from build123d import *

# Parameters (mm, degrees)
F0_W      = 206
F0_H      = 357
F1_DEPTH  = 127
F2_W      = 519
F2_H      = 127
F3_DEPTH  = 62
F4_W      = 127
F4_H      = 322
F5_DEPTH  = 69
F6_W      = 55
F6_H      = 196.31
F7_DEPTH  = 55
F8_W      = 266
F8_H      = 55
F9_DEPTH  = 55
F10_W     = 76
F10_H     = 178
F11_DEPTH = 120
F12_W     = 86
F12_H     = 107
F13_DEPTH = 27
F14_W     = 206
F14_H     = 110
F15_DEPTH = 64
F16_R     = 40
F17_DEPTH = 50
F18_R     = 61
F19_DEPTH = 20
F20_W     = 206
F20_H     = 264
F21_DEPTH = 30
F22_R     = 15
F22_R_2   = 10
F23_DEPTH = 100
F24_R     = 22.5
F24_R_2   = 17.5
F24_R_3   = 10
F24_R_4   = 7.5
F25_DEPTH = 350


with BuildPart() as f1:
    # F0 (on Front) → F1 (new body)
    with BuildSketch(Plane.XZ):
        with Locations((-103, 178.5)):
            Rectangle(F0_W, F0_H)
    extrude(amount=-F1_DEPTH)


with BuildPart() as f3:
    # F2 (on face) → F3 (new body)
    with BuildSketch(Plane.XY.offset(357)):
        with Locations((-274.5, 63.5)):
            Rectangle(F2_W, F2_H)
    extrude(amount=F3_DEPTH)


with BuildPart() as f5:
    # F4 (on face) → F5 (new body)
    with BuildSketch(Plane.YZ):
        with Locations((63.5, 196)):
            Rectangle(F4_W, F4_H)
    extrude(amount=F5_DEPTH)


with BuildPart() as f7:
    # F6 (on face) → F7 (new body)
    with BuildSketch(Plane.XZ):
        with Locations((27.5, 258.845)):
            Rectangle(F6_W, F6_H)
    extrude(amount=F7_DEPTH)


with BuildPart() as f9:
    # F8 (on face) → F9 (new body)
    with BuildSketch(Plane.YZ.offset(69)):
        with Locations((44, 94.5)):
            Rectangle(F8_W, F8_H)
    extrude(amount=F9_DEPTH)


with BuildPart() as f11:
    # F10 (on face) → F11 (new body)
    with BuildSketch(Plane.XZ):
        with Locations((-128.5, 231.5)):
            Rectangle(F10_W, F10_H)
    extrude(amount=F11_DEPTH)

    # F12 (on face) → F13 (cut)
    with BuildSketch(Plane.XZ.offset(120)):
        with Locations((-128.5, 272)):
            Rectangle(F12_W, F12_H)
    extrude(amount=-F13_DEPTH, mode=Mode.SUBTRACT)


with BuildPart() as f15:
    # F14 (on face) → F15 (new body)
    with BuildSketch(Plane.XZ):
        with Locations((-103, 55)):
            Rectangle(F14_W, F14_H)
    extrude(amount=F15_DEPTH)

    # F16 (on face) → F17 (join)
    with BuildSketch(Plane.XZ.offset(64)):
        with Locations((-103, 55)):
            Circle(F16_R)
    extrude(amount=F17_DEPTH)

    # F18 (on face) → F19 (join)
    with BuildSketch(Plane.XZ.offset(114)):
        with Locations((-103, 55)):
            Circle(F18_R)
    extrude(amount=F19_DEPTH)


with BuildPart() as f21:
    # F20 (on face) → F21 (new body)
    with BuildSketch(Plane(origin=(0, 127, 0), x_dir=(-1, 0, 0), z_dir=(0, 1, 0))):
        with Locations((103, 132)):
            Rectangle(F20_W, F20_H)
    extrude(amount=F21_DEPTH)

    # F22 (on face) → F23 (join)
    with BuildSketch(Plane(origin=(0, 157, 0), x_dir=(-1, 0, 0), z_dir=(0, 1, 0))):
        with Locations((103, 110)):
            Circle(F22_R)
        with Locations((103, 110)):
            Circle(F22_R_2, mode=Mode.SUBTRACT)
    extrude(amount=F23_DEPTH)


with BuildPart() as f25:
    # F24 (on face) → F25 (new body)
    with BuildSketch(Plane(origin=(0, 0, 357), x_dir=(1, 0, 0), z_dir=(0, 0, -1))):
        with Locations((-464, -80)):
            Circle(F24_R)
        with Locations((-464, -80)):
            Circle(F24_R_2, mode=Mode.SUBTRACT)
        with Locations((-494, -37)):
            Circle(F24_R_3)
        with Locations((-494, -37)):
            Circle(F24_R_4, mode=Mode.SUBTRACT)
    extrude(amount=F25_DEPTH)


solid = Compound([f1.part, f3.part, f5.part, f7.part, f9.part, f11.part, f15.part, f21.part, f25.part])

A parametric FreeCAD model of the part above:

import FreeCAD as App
import Part
import Sketcher

V = App.Vector
Q = App.Units.Quantity

doc = App.newDocument("Part")
params = doc.addObject("Spreadsheet::Sheet", "Params")
for row, (alias, value) in enumerate([
    ("sketch1_width", "206 mm"),
    ("sketch1_height", "357 mm"),
    ("pad1_length", "127 mm"),
    ("sketch2_width", "519 mm"),
    ("sketch2_height", "127 mm"),
    ("pad2_length", "62 mm"),
    ("sketch3_width", "127 mm"),
    ("sketch3_height", "322 mm"),
    ("pad3_length", "69 mm"),
    ("sketch4_width", "55 mm"),
    ("sketch4_height", "196.31 mm"),
    ("pad4_length", "55 mm"),
    ("sketch5_width", "266 mm"),
    ("sketch5_height", "55 mm"),
    ("pad5_length", "55 mm"),
    ("sketch6_width", "76 mm"),
    ("sketch6_height", "178 mm"),
    ("pad6_length", "120 mm"),
    ("sketch7_width", "86 mm"),
    ("sketch7_height", "107 mm"),
    ("pocket1_length", "27 mm"),
    ("sketch8_width", "206 mm"),
    ("sketch8_height", "110 mm"),
    ("pad7_length", "64 mm"),
    ("sketch9_diameter", "80 mm"),
    ("pad8_length", "50 mm"),
    ("sketch10_diameter", "122 mm"),
    ("pad9_length", "20 mm"),
    ("sketch11_width", "206 mm"),
    ("sketch11_height", "264 mm"),
    ("pad10_length", "30 mm"),
    ("sketch12_diameter", "30 mm"),
    ("sketch12_diameter2", "20 mm"),
    ("pad11_length", "100 mm"),
    ("sketch13_diameter", "45 mm"),
    ("sketch13_diameter2", "35 mm"),
    ("sketch13_diameter3", "20 mm"),
    ("sketch13_diameter4", "15 mm"),
    ("pad12_length", "350 mm"),
], start=1):
    params.set(f"A{row}", alias)
    params.set(f"B{row}", "=" + value)
    params.setAlias(f"B{row}", alias)

body = doc.addObject("PartDesign::Body", "Body")

# Sketch on XZ plane
sketch1 = body.newObject("Sketcher::SketchObject", "Sketch")
sketch1.AttachmentSupport = (doc.getObject("XZ_Plane"), [""])
sketch1.MapMode = "FlatFace"
sketch1.addGeometry([
    Part.LineSegment(V(-206, 357, 0), V(-206, 0, 0)),
    Part.LineSegment(V(-206, 0, 0), V(0, 0, 0)),
    Part.LineSegment(V(0, 0, 0), V(0, 357, 0)),
    Part.LineSegment(V(0, 357, 0), V(-206, 357, 0)),
], False)
sketch1.addConstraint([
    Sketcher.Constraint("Coincident", 0, 2, 1, 1),
    Sketcher.Constraint("Coincident", 1, 2, 2, 1),
    Sketcher.Constraint("Coincident", 2, 2, 3, 1),
    Sketcher.Constraint("Coincident", 3, 2, 0, 1),
    Sketcher.Constraint("Vertical", 0),
    Sketcher.Constraint("Horizontal", 1),
    Sketcher.Constraint("Vertical", 2),
    Sketcher.Constraint("Horizontal", 3),
    Sketcher.Constraint("Coincident", 1, 2, -1, 1),
    Sketcher.Constraint("DistanceX", 1, 1, 1, 2, Q("206 mm")),
    Sketcher.Constraint("DistanceY", 0, 2, 0, 1, Q("357 mm")),
])
sketch1.setExpression("Constraints[9]", "Params.sketch1_width")
sketch1.setExpression("Constraints[10]", "Params.sketch1_height")
pad1 = body.newObject("PartDesign::Pad", "Pad")
pad1.Profile = sketch1
pad1.setExpression("Length", "Params.pad1_length")
pad1.Reversed = True
body2 = doc.addObject("PartDesign::Body", "Body001")

# Sketch on XY plane
sketch2 = body2.newObject("Sketcher::SketchObject", "Sketch001")
sketch2.AttachmentSupport = (doc.getObject("XY_Plane001"), [""])
sketch2.MapMode = "FlatFace"
sketch2.AttachmentOffset = App.Placement(V(0, 0, 357), App.Rotation())
sketch2.addGeometry([
    Part.LineSegment(V(-534, 127, 0), V(-534, 0, 0)),
    Part.LineSegment(V(-534, 0, 0), V(-15, 0, 0)),
    Part.LineSegment(V(-15, 0, 0), V(-15, 127, 0)),
    Part.LineSegment(V(-15, 127, 0), V(-534, 127, 0)),
], False)
sketch2.addConstraint([
    Sketcher.Constraint("Coincident", 0, 2, 1, 1),
    Sketcher.Constraint("Coincident", 1, 2, 2, 1),
    Sketcher.Constraint("Coincident", 2, 2, 3, 1),
    Sketcher.Constraint("Coincident", 3, 2, 0, 1),
    Sketcher.Constraint("Vertical", 0),
    Sketcher.Constraint("Horizontal", 1),
    Sketcher.Constraint("Vertical", 2),
    Sketcher.Constraint("Horizontal", 3),
    Sketcher.Constraint("PointOnObject", 0, 2, -1),
    Sketcher.Constraint("DistanceX", 1, 1, 1, 2, Q("519 mm")),
    Sketcher.Constraint("DistanceY", 0, 2, 0, 1, Q("127 mm")),
    Sketcher.Constraint("DistanceX", 0, 2, -1, 1, Q("534 mm")),
])
sketch2.setExpression("Constraints[9]", "Params.sketch2_width")
sketch2.setExpression("Constraints[10]", "Params.sketch2_height")
pad2 = body2.newObject("PartDesign::Pad", "Pad001")
pad2.Profile = sketch2
pad2.setExpression("Length", "Params.pad2_length")
body3 = doc.addObject("PartDesign::Body", "Body002")

# Sketch on YZ plane
sketch3 = body3.newObject("Sketcher::SketchObject", "Sketch002")
sketch3.AttachmentSupport = (doc.getObject("YZ_Plane002"), [""])
sketch3.MapMode = "FlatFace"
sketch3.addGeometry([
    Part.LineSegment(V(0, 357, 0), V(0, 35, 0)),
    Part.LineSegment(V(0, 35, 0), V(127, 35, 0)),
    Part.LineSegment(V(127, 35, 0), V(127, 357, 0)),
    Part.LineSegment(V(127, 357, 0), V(0, 357, 0)),
], False)
sketch3.addConstraint([
    Sketcher.Constraint("Coincident", 0, 2, 1, 1),
    Sketcher.Constraint("Coincident", 1, 2, 2, 1),
    Sketcher.Constraint("Coincident", 2, 2, 3, 1),
    Sketcher.Constraint("Coincident", 3, 2, 0, 1),
    Sketcher.Constraint("Vertical", 0),
    Sketcher.Constraint("Horizontal", 1),
    Sketcher.Constraint("Vertical", 2),
    Sketcher.Constraint("Horizontal", 3),
    Sketcher.Constraint("PointOnObject", 0, 2, -2),
    Sketcher.Constraint("DistanceX", 1, 1, 1, 2, Q("127 mm")),
    Sketcher.Constraint("DistanceY", 0, 2, 0, 1, Q("322 mm")),
    Sketcher.Constraint("DistanceY", -1, 1, 0, 2, Q("35 mm")),
])
sketch3.setExpression("Constraints[9]", "Params.sketch3_width")
sketch3.setExpression("Constraints[10]", "Params.sketch3_height")
pad3 = body3.newObject("PartDesign::Pad", "Pad002")
pad3.Profile = sketch3
pad3.setExpression("Length", "Params.pad3_length")
body4 = doc.addObject("PartDesign::Body", "Body003")

# Sketch on XZ plane
sketch4 = body4.newObject("Sketcher::SketchObject", "Sketch003")
sketch4.AttachmentSupport = (doc.getObject("XZ_Plane003"), [""])
sketch4.MapMode = "FlatFace"
sketch4.addGeometry([
    Part.LineSegment(V(0, 357, 0), V(0, 161, 0)),
    Part.LineSegment(V(0, 161, 0), V(55, 161, 0)),
    Part.LineSegment(V(55, 161, 0), V(55, 357, 0)),
    Part.LineSegment(V(55, 357, 0), V(0, 357, 0)),
], False)
sketch4.addConstraint([
    Sketcher.Constraint("Coincident", 0, 2, 1, 1),
    Sketcher.Constraint("Coincident", 1, 2, 2, 1),
    Sketcher.Constraint("Coincident", 2, 2, 3, 1),
    Sketcher.Constraint("Coincident", 3, 2, 0, 1),
    Sketcher.Constraint("Vertical", 0),
    Sketcher.Constraint("Horizontal", 1),
    Sketcher.Constraint("Vertical", 2),
    Sketcher.Constraint("Horizontal", 3),
    Sketcher.Constraint("PointOnObject", 0, 2, -2),
    Sketcher.Constraint("DistanceX", 1, 1, 1, 2, Q("55 mm")),
    Sketcher.Constraint("DistanceY", -1, 1, 2, 2, Q("357 mm")),
    Sketcher.Constraint("DistanceY", 0, 2, 0, 1, Q("196.31 mm")),
])
sketch4.setExpression("Constraints[9]", "Params.sketch4_width")
sketch4.setExpression("Constraints[11]", "Params.sketch4_height")
pad4 = body4.newObject("PartDesign::Pad", "Pad003")
pad4.Profile = sketch4
pad4.setExpression("Length", "Params.pad4_length")
body5 = doc.addObject("PartDesign::Body", "Body004")

# Sketch on YZ plane
sketch5 = body5.newObject("Sketcher::SketchObject", "Sketch004")
sketch5.AttachmentSupport = (doc.getObject("YZ_Plane004"), [""])
sketch5.MapMode = "FlatFace"
sketch5.AttachmentOffset = App.Placement(V(0, 0, 69), App.Rotation())
sketch5.addGeometry([
    Part.LineSegment(V(-89, 122, 0), V(-89, 67, 0)),
    Part.LineSegment(V(-89, 67, 0), V(177, 67, 0)),
    Part.LineSegment(V(177, 67, 0), V(177, 122, 0)),
    Part.LineSegment(V(177, 122, 0), V(-89, 122, 0)),
], False)
sketch5.addConstraint([
    Sketcher.Constraint("Coincident", 0, 2, 1, 1),
    Sketcher.Constraint("Coincident", 1, 2, 2, 1),
    Sketcher.Constraint("Coincident", 2, 2, 3, 1),
    Sketcher.Constraint("Coincident", 3, 2, 0, 1),
    Sketcher.Constraint("Vertical", 0),
    Sketcher.Constraint("Horizontal", 1),
    Sketcher.Constraint("Vertical", 2),
    Sketcher.Constraint("Horizontal", 3),
    Sketcher.Constraint("DistanceX", 1, 1, 1, 2, Q("266 mm")),
    Sketcher.Constraint("DistanceY", 0, 2, 0, 1, Q("55 mm")),
    Sketcher.Constraint("DistanceX", 0, 2, -1, 1, Q("89 mm")),
    Sketcher.Constraint("DistanceY", -1, 1, 0, 2, Q("67 mm")),
])
sketch5.setExpression("Constraints[8]", "Params.sketch5_width")
sketch5.setExpression("Constraints[9]", "Params.sketch5_height")
pad5 = body5.newObject("PartDesign::Pad", "Pad004")
pad5.Profile = sketch5
pad5.setExpression("Length", "Params.pad5_length")
body6 = doc.addObject("PartDesign::Body", "Body005")

# Sketch on XZ plane
sketch6 = body6.newObject("Sketcher::SketchObject", "Sketch005")
sketch6.AttachmentSupport = (doc.getObject("XZ_Plane005"), [""])
sketch6.MapMode = "FlatFace"
sketch6.addGeometry([
    Part.LineSegment(V(-166, 320, 0), V(-166, 142, 0)),
    Part.LineSegment(V(-166, 142, 0), V(-90, 142, 0)),
    Part.LineSegment(V(-90, 142, 0), V(-90, 320, 0)),
    Part.LineSegment(V(-90, 320, 0), V(-166, 320, 0)),
], False)
sketch6.addConstraint([
    Sketcher.Constraint("Coincident", 0, 2, 1, 1),
    Sketcher.Constraint("Coincident", 1, 2, 2, 1),
    Sketcher.Constraint("Coincident", 2, 2, 3, 1),
    Sketcher.Constraint("Coincident", 3, 2, 0, 1),
    Sketcher.Constraint("Vertical", 0),
    Sketcher.Constraint("Horizontal", 1),
    Sketcher.Constraint("Vertical", 2),
    Sketcher.Constraint("Horizontal", 3),
    Sketcher.Constraint("DistanceX", 1, 1, 1, 2, Q("76 mm")),
    Sketcher.Constraint("DistanceY", 0, 2, 0, 1, Q("178 mm")),
    Sketcher.Constraint("DistanceX", 0, 2, -1, 1, Q("166.5 mm")),
    Sketcher.Constraint("DistanceY", -1, 1, 0, 2, Q("142.5 mm")),
])
sketch6.setExpression("Constraints[8]", "Params.sketch6_width")
sketch6.setExpression("Constraints[9]", "Params.sketch6_height")
pad6 = body6.newObject("PartDesign::Pad", "Pad005")
pad6.Profile = sketch6
pad6.setExpression("Length", "Params.pad6_length")

# Sketch on XZ plane
sketch7 = body6.newObject("Sketcher::SketchObject", "Sketch006")
sketch7.AttachmentSupport = (doc.getObject("XZ_Plane005"), [""])
sketch7.MapMode = "FlatFace"
sketch7.AttachmentOffset = App.Placement(V(0, 0, 120), App.Rotation())
sketch7.addGeometry([
    Part.LineSegment(V(-172, 326, 0), V(-172, 218, 0)),
    Part.LineSegment(V(-172, 218, 0), V(-86, 218, 0)),
    Part.LineSegment(V(-86, 218, 0), V(-86, 326, 0)),
    Part.LineSegment(V(-86, 326, 0), V(-172, 326, 0)),
], False)
sketch7.addConstraint([
    Sketcher.Constraint("Coincident", 0, 2, 1, 1),
    Sketcher.Constraint("Coincident", 1, 2, 2, 1),
    Sketcher.Constraint("Coincident", 2, 2, 3, 1),
    Sketcher.Constraint("Coincident", 3, 2, 0, 1),
    Sketcher.Constraint("Vertical", 0),
    Sketcher.Constraint("Horizontal", 1),
    Sketcher.Constraint("Vertical", 2),
    Sketcher.Constraint("Horizontal", 3),
    Sketcher.Constraint("DistanceX", 1, 1, 1, 2, Q("86 mm")),
    Sketcher.Constraint("DistanceY", 0, 2, 0, 1, Q("107 mm")),
    Sketcher.Constraint("DistanceX", 0, 2, -1, 1, Q("171.5 mm")),
    Sketcher.Constraint("DistanceY", -1, 1, 0, 2, Q("218.5 mm")),
])
sketch7.setExpression("Constraints[8]", "Params.sketch7_width")
sketch7.setExpression("Constraints[9]", "Params.sketch7_height")
pocket1 = body6.newObject("PartDesign::Pocket", "Pocket")
pocket1.Profile = sketch7
pocket1.setExpression("Length", "Params.pocket1_length")
body7 = doc.addObject("PartDesign::Body", "Body006")

# Sketch on XZ plane
sketch8 = body7.newObject("Sketcher::SketchObject", "Sketch007")
sketch8.AttachmentSupport = (doc.getObject("XZ_Plane006"), [""])
sketch8.MapMode = "FlatFace"
sketch8.addGeometry([
    Part.LineSegment(V(-206, 110, 0), V(-206, 0, 0)),
    Part.LineSegment(V(-206, 0, 0), V(0, 0, 0)),
    Part.LineSegment(V(0, 0, 0), V(0, 110, 0)),
    Part.LineSegment(V(0, 110, 0), V(-206, 110, 0)),
], False)
sketch8.addConstraint([
    Sketcher.Constraint("Coincident", 0, 2, 1, 1),
    Sketcher.Constraint("Coincident", 1, 2, 2, 1),
    Sketcher.Constraint("Coincident", 2, 2, 3, 1),
    Sketcher.Constraint("Coincident", 3, 2, 0, 1),
    Sketcher.Constraint("Vertical", 0),
    Sketcher.Constraint("Horizontal", 1),
    Sketcher.Constraint("Vertical", 2),
    Sketcher.Constraint("Horizontal", 3),
    Sketcher.Constraint("Coincident", 1, 2, -1, 1),
    Sketcher.Constraint("DistanceX", 1, 1, 1, 2, Q("206 mm")),
    Sketcher.Constraint("DistanceY", 0, 2, 0, 1, Q("110 mm")),
])
sketch8.setExpression("Constraints[9]", "Params.sketch8_width")
sketch8.setExpression("Constraints[10]", "Params.sketch8_height")
pad7 = body7.newObject("PartDesign::Pad", "Pad006")
pad7.Profile = sketch8
pad7.setExpression("Length", "Params.pad7_length")

# Sketch on XZ plane
sketch9 = body7.newObject("Sketcher::SketchObject", "Sketch008")
sketch9.AttachmentSupport = (doc.getObject("XZ_Plane006"), [""])
sketch9.MapMode = "FlatFace"
sketch9.AttachmentOffset = App.Placement(V(0, 0, 64), App.Rotation())
sketch9.addGeometry(Part.Circle(V(-103, 55, 0), V(0, 0, 1), 40), False)
sketch9.addConstraint([
    Sketcher.Constraint("Diameter", 0, Q("80 mm")),
    Sketcher.Constraint("DistanceX", 0, 3, -1, 1, Q("103 mm")),
    Sketcher.Constraint("DistanceY", -1, 1, 0, 3, Q("55 mm")),
])
sketch9.setExpression("Constraints[0]", "Params.sketch9_diameter")
pad8 = body7.newObject("PartDesign::Pad", "Pad007")
pad8.Profile = sketch9
pad8.setExpression("Length", "Params.pad8_length")

# Sketch on XZ plane
sketch10 = body7.newObject("Sketcher::SketchObject", "Sketch009")
sketch10.AttachmentSupport = (doc.getObject("XZ_Plane006"), [""])
sketch10.MapMode = "FlatFace"
sketch10.AttachmentOffset = App.Placement(V(0, 0, 114), App.Rotation())
sketch10.addGeometry(Part.Circle(V(-103, 55, 0), V(0, 0, 1), 61), False)
sketch10.addConstraint([
    Sketcher.Constraint("Diameter", 0, Q("122 mm")),
    Sketcher.Constraint("DistanceX", 0, 3, -1, 1, Q("103 mm")),
    Sketcher.Constraint("DistanceY", -1, 1, 0, 3, Q("55 mm")),
])
sketch10.setExpression("Constraints[0]", "Params.sketch10_diameter")
pad9 = body7.newObject("PartDesign::Pad", "Pad008")
pad9.Profile = sketch10
pad9.setExpression("Length", "Params.pad9_length")
body8 = doc.addObject("PartDesign::Body", "Body007")

# Sketch on XZ plane
sketch11 = body8.newObject("Sketcher::SketchObject", "Sketch010")
sketch11.AttachmentSupport = (doc.getObject("XZ_Plane007"), [""])
sketch11.MapMode = "FlatFace"
sketch11.AttachmentOffset = App.Placement(V(0, 0, -127), App.Rotation())
sketch11.addGeometry([
    Part.LineSegment(V(0, 264, 0), V(0, 0, 0)),
    Part.LineSegment(V(0, 0, 0), V(-206, 0, 0)),
    Part.LineSegment(V(-206, 0, 0), V(-206, 264, 0)),
    Part.LineSegment(V(-206, 264, 0), V(0, 264, 0)),
], False)
sketch11.addConstraint([
    Sketcher.Constraint("Coincident", 0, 2, 1, 1),
    Sketcher.Constraint("Coincident", 1, 2, 2, 1),
    Sketcher.Constraint("Coincident", 2, 2, 3, 1),
    Sketcher.Constraint("Coincident", 3, 2, 0, 1),
    Sketcher.Constraint("Vertical", 0),
    Sketcher.Constraint("Horizontal", 1),
    Sketcher.Constraint("Vertical", 2),
    Sketcher.Constraint("Horizontal", 3),
    Sketcher.Constraint("Coincident", 0, 2, -1, 1),
    Sketcher.Constraint("DistanceX", 1, 2, 1, 1, Q("206 mm")),
    Sketcher.Constraint("DistanceY", 0, 2, 0, 1, Q("264 mm")),
])
sketch11.setExpression("Constraints[9]", "Params.sketch11_width")
sketch11.setExpression("Constraints[10]", "Params.sketch11_height")
pad10 = body8.newObject("PartDesign::Pad", "Pad009")
pad10.Profile = sketch11
pad10.setExpression("Length", "Params.pad10_length")
pad10.Reversed = True

# Sketch on XZ plane
sketch12 = body8.newObject("Sketcher::SketchObject", "Sketch011")
sketch12.AttachmentSupport = (doc.getObject("XZ_Plane007"), [""])
sketch12.MapMode = "FlatFace"
sketch12.AttachmentOffset = App.Placement(V(0, 0, -157), App.Rotation())
sketch12.addGeometry([
    Part.Circle(V(-103, 110, 0), V(0, 0, 1), 15),
    Part.Circle(V(-103, 110, 0), V(0, 0, 1), 10),
], False)
sketch12.addConstraint([
    Sketcher.Constraint("Coincident", 1, 3, 0, 3),
    Sketcher.Constraint("Diameter", 0, Q("30 mm")),
    Sketcher.Constraint("Diameter", 1, Q("20 mm")),
    Sketcher.Constraint("DistanceX", 0, 3, -1, 1, Q("103 mm")),
    Sketcher.Constraint("DistanceY", -1, 1, 0, 3, Q("110 mm")),
])
sketch12.setExpression("Constraints[1]", "Params.sketch12_diameter")
sketch12.setExpression("Constraints[2]", "Params.sketch12_diameter2")
pad11 = body8.newObject("PartDesign::Pad", "Pad010")
pad11.Profile = sketch12
pad11.setExpression("Length", "Params.pad11_length")
pad11.Reversed = True
body9 = doc.addObject("PartDesign::Body", "Body008")
body9.AllowCompound = True

# Sketch on XY plane
sketch13 = body9.newObject("Sketcher::SketchObject", "Sketch012")
sketch13.AttachmentSupport = (doc.getObject("XY_Plane008"), [""])
sketch13.MapMode = "FlatFace"
sketch13.AttachmentOffset = App.Placement(V(0, 0, 357), App.Rotation())
sketch13.addGeometry([
    Part.Circle(V(-464, 80, 0), V(0, 0, 1), 22),
    Part.Circle(V(-464, 80, 0), V(0, 0, 1), 18),
    Part.Circle(V(-494, 37, 0), V(0, 0, 1), 10),
    Part.Circle(V(-494, 37, 0), V(0, 0, 1), 8),
], False)
sketch13.addConstraint([
    Sketcher.Constraint("Coincident", 1, 3, 0, 3),
    Sketcher.Constraint("Coincident", 3, 3, 2, 3),
    Sketcher.Constraint("Diameter", 0, Q("45 mm")),
    Sketcher.Constraint("Diameter", 1, Q("35 mm")),
    Sketcher.Constraint("Diameter", 2, Q("20 mm")),
    Sketcher.Constraint("Diameter", 3, Q("15 mm")),
    Sketcher.Constraint("DistanceX", 0, 3, -1, 1, Q("464 mm")),
    Sketcher.Constraint("DistanceY", -1, 1, 0, 3, Q("80 mm")),
    Sketcher.Constraint("DistanceX", 2, 3, -1, 1, Q("494 mm")),
    Sketcher.Constraint("DistanceY", -1, 1, 2, 3, Q("37 mm")),
])
sketch13.setExpression("Constraints[2]", "Params.sketch13_diameter")
sketch13.setExpression("Constraints[3]", "Params.sketch13_diameter2")
sketch13.setExpression("Constraints[4]", "Params.sketch13_diameter3")
sketch13.setExpression("Constraints[5]", "Params.sketch13_diameter4")
pad12 = body9.newObject("PartDesign::Pad", "Pad011")
pad12.Profile = sketch13
pad12.setExpression("Length", "Params.pad12_length")
pad12.Reversed = True

doc.recompute()
